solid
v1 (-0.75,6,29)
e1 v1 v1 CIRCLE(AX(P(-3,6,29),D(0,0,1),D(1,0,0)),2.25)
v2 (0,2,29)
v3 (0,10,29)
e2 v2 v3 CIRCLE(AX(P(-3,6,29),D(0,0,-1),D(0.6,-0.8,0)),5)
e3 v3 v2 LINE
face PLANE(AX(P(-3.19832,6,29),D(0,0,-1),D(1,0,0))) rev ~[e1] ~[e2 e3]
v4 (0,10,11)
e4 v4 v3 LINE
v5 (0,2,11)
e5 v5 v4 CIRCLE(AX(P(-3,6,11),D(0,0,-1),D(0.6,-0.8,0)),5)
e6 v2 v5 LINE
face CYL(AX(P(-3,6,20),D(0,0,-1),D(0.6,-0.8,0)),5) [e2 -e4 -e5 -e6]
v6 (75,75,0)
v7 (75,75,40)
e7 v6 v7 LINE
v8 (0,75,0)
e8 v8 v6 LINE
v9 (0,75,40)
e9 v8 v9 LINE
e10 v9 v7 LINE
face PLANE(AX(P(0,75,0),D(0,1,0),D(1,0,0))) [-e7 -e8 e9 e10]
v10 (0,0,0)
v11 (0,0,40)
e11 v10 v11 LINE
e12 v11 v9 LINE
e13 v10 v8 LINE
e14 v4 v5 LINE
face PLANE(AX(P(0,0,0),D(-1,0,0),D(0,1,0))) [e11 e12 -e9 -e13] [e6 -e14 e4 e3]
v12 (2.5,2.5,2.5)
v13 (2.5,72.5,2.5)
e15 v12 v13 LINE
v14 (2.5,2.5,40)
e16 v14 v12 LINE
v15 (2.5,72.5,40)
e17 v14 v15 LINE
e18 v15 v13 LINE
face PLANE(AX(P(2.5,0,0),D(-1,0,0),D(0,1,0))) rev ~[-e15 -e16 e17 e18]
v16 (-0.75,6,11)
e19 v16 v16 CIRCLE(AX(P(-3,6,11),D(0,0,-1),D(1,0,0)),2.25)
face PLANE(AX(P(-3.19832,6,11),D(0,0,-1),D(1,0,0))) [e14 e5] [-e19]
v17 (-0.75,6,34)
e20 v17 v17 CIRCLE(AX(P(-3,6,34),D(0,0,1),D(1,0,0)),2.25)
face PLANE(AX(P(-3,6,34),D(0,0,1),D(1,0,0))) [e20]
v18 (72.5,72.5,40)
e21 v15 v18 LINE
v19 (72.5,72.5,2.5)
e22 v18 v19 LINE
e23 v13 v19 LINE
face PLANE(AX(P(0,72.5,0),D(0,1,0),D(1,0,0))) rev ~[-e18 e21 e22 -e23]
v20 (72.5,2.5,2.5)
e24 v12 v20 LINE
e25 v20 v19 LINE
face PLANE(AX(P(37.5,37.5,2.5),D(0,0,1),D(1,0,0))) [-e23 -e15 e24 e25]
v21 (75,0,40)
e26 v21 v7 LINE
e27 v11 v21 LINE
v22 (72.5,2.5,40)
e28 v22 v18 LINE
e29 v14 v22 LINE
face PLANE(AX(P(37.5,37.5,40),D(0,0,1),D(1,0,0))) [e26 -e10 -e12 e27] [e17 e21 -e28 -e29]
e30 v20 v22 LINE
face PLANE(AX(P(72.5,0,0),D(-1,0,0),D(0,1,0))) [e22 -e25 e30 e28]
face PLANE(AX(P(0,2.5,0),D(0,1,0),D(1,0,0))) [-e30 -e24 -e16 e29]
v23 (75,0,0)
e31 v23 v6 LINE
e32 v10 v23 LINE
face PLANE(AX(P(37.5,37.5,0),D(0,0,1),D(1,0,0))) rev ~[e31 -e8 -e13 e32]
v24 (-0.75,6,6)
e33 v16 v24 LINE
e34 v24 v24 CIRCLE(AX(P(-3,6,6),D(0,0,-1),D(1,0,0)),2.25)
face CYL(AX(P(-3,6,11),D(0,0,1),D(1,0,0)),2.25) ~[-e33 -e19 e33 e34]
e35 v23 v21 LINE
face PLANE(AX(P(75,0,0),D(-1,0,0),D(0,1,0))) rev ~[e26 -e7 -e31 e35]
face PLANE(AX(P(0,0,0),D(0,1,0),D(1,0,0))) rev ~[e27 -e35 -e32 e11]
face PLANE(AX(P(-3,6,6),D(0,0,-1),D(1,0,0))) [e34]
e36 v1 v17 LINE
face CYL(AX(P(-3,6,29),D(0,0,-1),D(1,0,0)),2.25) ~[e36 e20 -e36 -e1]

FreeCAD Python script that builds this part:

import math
import FreeCAD as App
import Part
import Sketcher


def faces_at(feature, points):
    """Names of the faces that lie closest to the given points."""
    faces = feature.Shape.Faces
    near = lambda p: min(range(len(faces)), key=lambda i: faces[i].distToShape(Part.Vertex(*p))[0])
    return sorted({f"Face{near(p) + 1}" for p in points})


def add_polygon(sketch, points):
    """Adds a closed chain of lines whose ends are joined by coincident constraints."""
    first, n = sketch.GeometryCount, len(points)
    for a, b in zip(points, points[1:] + points[:1]):
        sketch.addGeometry(Part.LineSegment(App.Vector(*a, 0), App.Vector(*b, 0)), False)
    for i in range(n):
        sketch.addConstraint(Sketcher.Constraint("Coincident", first + i, 2, first + (i + 1) % n, 1))

doc = App.newDocument("Part")
body = doc.addObject("PartDesign::Body", "Body")

# Sketch on XY plane
sketch1 = body.newObject("Sketcher::SketchObject", "Sketch")
sketch1.AttachmentSupport = (doc.getObject("XY_Plane"), [""])
sketch1.MapMode = "FlatFace"
add_polygon(sketch1, [(0, 75), (0, 0), (75, 0), (75, 75)])  # lines 0-3
sketch1.addConstraint(Sketcher.Constraint("Vertical", 0))
sketch1.addConstraint(Sketcher.Constraint("Horizontal", 1))
sketch1.addConstraint(Sketcher.Constraint("Vertical", 2))
sketch1.addConstraint(Sketcher.Constraint("Horizontal", 3))
sketch1.addConstraint(Sketcher.Constraint("Coincident", 0, 2, -1, 1))
sketch1.addConstraint(Sketcher.Constraint("Equal", 3, 0))
sketch1.addConstraint(Sketcher.Constraint("DistanceX", 1, 1, 1, 2, 75.0))
pad1 = body.newObject("PartDesign::Pad", "Pad")
pad1.Profile = sketch1
pad1.Length = 40
doc.recompute()

thickness = body.newObject("PartDesign::Thickness", "Thickness")
thickness.Base = (pad1, faces_at(pad1, [(37.5, 37.5, 40)]))
thickness.Value = 2.5
thickness.Reversed = True
thickness.Join = "Arc"

# Sketch on XY plane
sketch2 = body.newObject("Sketcher::SketchObject", "Sketch001")
sketch2.AttachmentSupport = (doc.getObject("XY_Plane"), [""])
sketch2.MapMode = "FlatFace"
sketch2.AttachmentOffset = App.Placement(App.Vector(0, 0, 20), App.Rotation())
sketch2.addGeometry(Part.LineSegment(App.Vector(0, 10, 0), App.Vector(0, 2, 0)), False)
sketch2.addGeometry(Part.ArcOfCircle(Part.Circle(App.Vector(-3, 6, 0), App.Vector(0, 0, 1), 5), math.radians(53), math.radians(307)), False)
sketch2.addConstraint(Sketcher.Constraint("Coincident", 0, 1, 1, 1))
sketch2.addConstraint(Sketcher.Constraint("Coincident", 1, 2, 0, 2))
sketch2.addConstraint(Sketcher.Constraint("Vertical", 0))
sketch2.addConstraint(Sketcher.Constraint("PointOnObject", 0, 1, -2))
sketch2.addConstraint(Sketcher.Constraint("Radius", 1, 5.0))
sketch2.addConstraint(Sketcher.Constraint("DistanceY", 0, 2, 0, 1, 8.0))
sketch2.addConstraint(Sketcher.Constraint("DistanceY", -1, 1, 1, 3, 6.0))
pad2 = body.newObject("PartDesign::Pad", "Pad001")
pad2.Profile = sketch2
pad2.Length = 18
pad2.Midplane = True

# Sketch on XY plane
sketch3 = body.newObject("Sketcher::SketchObject", "Sketch002")
sketch3.AttachmentSupport = (doc.getObject("XY_Plane"), [""])
sketch3.MapMode = "FlatFace"
sketch3.AttachmentOffset = App.Placement(App.Vector(0, 0, 11), App.Rotation())
sketch3.addGeometry(Part.Circle(App.Vector(-3, 6, 0), App.Vector(0, 0, 1), 2.2), False)
sketch3.addConstraint(Sketcher.Constraint("Diameter", 0, 4.5))
sketch3.addConstraint(Sketcher.Constraint("DistanceX", 0, 3, -1, 1, 3.0))
sketch3.addConstraint(Sketcher.Constraint("DistanceY", -1, 1, 0, 3, 6.0))
pad3 = body.newObject("PartDesign::Pad", "Pad002")
pad3.Profile = sketch3
pad3.Length = 5
pad3.Reversed = True

# Sketch on XY plane
sketch4 = body.newObject("Sketcher::SketchObject", "Sketch003")
sketch4.AttachmentSupport = (doc.getObject("XY_Plane"), [""])
sketch4.MapMode = "FlatFace"
sketch4.AttachmentOffset = App.Placement(App.Vector(0, 0, 29), App.Rotation())
sketch4.addGeometry(Part.Circle(App.Vector(-3, 6, 0), App.Vector(0, 0, 1), 2.2), False)
sketch4.addConstraint(Sketcher.Constraint("Diameter", 0, 4.5))
sketch4.addConstraint(Sketcher.Constraint("DistanceX", 0, 3, -1, 1, 3.0))
sketch4.addConstraint(Sketcher.Constraint("DistanceY", -1, 1, 0, 3, 6.0))
pad4 = body.newObject("PartDesign::Pad", "Pad003")
pad4.Profile = sketch4
pad4.Length = 5

doc.recompute()
